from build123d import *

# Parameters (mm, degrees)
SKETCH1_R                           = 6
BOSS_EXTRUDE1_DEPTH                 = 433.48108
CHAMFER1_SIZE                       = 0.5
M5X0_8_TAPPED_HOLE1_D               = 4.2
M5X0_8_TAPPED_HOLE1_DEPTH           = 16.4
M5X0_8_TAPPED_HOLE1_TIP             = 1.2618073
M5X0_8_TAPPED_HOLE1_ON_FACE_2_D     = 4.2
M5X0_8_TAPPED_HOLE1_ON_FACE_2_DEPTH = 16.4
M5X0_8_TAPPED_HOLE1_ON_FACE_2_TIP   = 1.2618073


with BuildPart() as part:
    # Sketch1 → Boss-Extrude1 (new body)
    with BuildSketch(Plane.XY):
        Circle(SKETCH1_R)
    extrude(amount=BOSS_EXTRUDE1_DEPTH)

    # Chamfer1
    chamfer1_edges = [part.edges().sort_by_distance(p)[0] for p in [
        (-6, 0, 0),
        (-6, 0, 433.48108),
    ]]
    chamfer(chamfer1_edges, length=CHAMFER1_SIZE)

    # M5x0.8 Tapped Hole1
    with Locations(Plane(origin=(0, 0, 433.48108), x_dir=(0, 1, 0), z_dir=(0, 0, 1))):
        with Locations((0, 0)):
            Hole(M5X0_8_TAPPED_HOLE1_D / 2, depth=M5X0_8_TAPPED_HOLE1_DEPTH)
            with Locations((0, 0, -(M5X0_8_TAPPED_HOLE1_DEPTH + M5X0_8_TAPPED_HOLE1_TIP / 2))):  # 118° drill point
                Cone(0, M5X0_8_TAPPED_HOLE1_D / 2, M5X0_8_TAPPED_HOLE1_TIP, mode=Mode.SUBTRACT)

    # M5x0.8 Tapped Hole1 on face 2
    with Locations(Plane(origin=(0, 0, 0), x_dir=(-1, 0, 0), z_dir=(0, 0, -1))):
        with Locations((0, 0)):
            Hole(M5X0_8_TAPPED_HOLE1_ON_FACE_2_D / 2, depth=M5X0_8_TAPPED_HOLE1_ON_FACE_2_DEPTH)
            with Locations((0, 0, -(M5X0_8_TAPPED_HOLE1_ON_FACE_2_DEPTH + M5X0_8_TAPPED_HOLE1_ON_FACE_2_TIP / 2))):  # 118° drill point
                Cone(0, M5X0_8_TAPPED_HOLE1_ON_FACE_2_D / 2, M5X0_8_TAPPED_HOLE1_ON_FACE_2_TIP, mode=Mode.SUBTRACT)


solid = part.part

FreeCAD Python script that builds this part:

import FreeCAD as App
import Part
import Sketcher

V = App.Vector


def edges_at(feature, points):
    """Names of the edges that pass closest to the given points."""
    edges = feature.Shape.Edges
    near = lambda p: min(range(len(edges)), key=lambda i: edges[i].distToShape(Part.Vertex(*p))[0])
    return sorted({f"Edge{near(p) + 1}" for p in points})

doc = App.newDocument("Part")
body = doc.addObject("PartDesign::Body", "Body")

sketch1 = body.newObject("Sketcher::SketchObject", "Sketch")
sketch1.AttachmentSupport = (doc.getObject("XY_Plane"), [""])
sketch1.MapMode = "FlatFace"
sketch1.addGeometry(Part.Circle(V(0, 0, 0), V(0, 0, 1), 6), False)
sketch1.addConstraint(Sketcher.Constraint("Coincident", 0, 3, -1, 1))
sketch1.addConstraint(Sketcher.Constraint("Diameter", 0, 12.0))
pad1 = body.newObject("PartDesign::Pad", "Pad")
pad1.Profile = sketch1
pad1.Length = 433.48108
doc.recompute()

chamfer = body.newObject("PartDesign::Chamfer", "Chamfer")
chamfer.Base = (pad1, edges_at(pad1, [(-6, 0, 0), (-6, 0, 433.481)]))
chamfer.Size = 0.5

sketch2 = body.newObject("Sketcher::SketchObject", "Sketch001")
sketch2.AttachmentSupport = (doc.getObject("XY_Plane"), [""])
sketch2.MapMode = "FlatFace"
sketch2.AttachmentOffset = App.Placement(V(0, 0, 433.48108), App.Rotation())
sketch2.addGeometry(Part.Circle(V(0, 0, 0), V(0, 0, 1), 2.1), False)
sketch2.addConstraint(Sketcher.Constraint("Coincident", 0, 3, -1, 1))
sketch2.addConstraint(Sketcher.Constraint("Diameter", 0, 4.2))
doc.recompute()
hole = body.newObject("PartDesign::Hole", "Hole")
hole.Profile = sketch2
hole.ThreadType = "None"
hole.Diameter = 4.2
hole.DepthType = "Dimension"
hole.Depth = 16.4
hole.DrillPoint = "Angled"
hole.DrillPointAngle = 118

sketch3 = body.newObject("Sketcher::SketchObject", "Sketch002")
sketch3.AttachmentSupport = (doc.getObject("XY_Plane"), [""])
sketch3.MapMode = "FlatFace"
sketch3.addGeometry(Part.Circle(V(0, 0, 0), V(0, 0, 1), 2.1), False)
sketch3.addConstraint(Sketcher.Constraint("Coincident", 0, 3, -1, 1))
sketch3.addConstraint(Sketcher.Constraint("Diameter", 0, 4.2))
doc.recompute()
hole2 = body.newObject("PartDesign::Hole", "Hole001")
hole2.Profile = sketch3
hole2.ThreadType = "None"
hole2.Diameter = 4.2
hole2.DepthType = "Dimension"
hole2.Depth = 16.4
hole2.DrillPoint = "Angled"
hole2.DrillPointAngle = 118
hole2.Reversed = True

doc.recompute()
